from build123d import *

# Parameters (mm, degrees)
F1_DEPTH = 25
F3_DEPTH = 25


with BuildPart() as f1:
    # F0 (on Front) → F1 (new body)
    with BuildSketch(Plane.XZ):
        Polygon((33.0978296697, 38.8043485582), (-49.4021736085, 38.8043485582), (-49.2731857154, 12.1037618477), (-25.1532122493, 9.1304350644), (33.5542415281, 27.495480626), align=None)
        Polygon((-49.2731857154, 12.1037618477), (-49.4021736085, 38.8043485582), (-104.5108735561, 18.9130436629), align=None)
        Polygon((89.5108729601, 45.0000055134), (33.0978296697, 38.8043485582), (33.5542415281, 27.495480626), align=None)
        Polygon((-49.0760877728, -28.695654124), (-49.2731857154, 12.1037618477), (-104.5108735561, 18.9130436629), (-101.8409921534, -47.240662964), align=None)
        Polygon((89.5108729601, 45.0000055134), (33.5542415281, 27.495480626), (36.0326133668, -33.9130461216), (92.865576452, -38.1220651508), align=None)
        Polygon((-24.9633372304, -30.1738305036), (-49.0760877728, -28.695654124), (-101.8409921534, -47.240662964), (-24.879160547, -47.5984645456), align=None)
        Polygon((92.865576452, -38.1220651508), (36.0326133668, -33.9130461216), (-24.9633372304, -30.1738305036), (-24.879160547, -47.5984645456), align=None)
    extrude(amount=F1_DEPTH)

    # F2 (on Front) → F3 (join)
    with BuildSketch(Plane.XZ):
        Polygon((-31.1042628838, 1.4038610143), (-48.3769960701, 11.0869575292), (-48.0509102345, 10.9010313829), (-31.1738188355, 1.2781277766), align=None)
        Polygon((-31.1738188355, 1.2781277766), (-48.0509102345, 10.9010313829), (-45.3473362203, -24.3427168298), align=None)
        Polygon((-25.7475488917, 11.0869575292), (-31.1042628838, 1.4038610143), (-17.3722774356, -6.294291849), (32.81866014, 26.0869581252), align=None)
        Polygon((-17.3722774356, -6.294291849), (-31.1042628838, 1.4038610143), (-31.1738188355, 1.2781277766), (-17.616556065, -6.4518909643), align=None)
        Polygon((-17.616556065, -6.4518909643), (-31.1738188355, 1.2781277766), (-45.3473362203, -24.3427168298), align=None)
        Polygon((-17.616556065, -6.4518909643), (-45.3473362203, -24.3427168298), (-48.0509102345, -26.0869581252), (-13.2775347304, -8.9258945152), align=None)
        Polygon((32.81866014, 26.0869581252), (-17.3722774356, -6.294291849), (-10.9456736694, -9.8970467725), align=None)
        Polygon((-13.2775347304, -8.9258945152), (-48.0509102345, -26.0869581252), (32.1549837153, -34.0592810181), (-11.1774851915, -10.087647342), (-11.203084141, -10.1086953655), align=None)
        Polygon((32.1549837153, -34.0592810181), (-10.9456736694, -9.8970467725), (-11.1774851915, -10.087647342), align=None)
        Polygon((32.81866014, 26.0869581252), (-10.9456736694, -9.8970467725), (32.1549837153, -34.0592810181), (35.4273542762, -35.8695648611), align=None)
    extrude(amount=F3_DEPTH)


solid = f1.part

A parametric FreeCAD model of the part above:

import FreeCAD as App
import Part
import Sketcher
from FreeCAD import Vector
Q = App.Units.Quantity


def add_polygon(sketch, points):
    """Adds a closed chain of lines whose ends are joined by coincident constraints."""
    first, n = sketch.GeometryCount, len(points)
    for a, b in zip(points, points[1:] + points[:1]):
        sketch.addGeometry(Part.LineSegment(App.Vector(*a, 0), App.Vector(*b, 0)), False)
    for i in range(n):
        sketch.addConstraint(Sketcher.Constraint("Coincident", first + i, 2, first + (i + 1) % n, 1))

doc = App.newDocument("Part")
body = doc.addObject("PartDesign::Body", "Body")

# Sketch on XZ plane
sketch1 = body.newObject("Sketcher::SketchObject", "Sketch")
sketch1.AttachmentSupport = (doc.getObject("XZ_Plane"), [""])
sketch1.MapMode = "FlatFace"
add_polygon(sketch1, [(33, 39), (-49, 39), (-105, 19), (-102, -47), (-25, -48), (93, -38), (90, 45)])  # lines 0-6
add_polygon(sketch1, [(-25, -30), (-49, -29), (-49, 12), (-25, 9), (34, 27), (36, -34)])  # lines 7-12
sketch1.addConstraint(Sketcher.Constraint("Horizontal", 0))
sketch1.addConstraint(Sketcher.Constraint("Parallel", 2, 5))
sketch1.addConstraint(Sketcher.Constraint("Parallel", 5, 11))
sketch1.addConstraint(Sketcher.Constraint("Parallel", 7, 12))
sketch1.addConstraint(Sketcher.Constraint("DistanceX", 1, 2, 0, 2, Q("55.1087 mm")))
sketch1.addConstraint(Sketcher.Constraint("DistanceY", 3, 2, 2, 2, Q("0.357802 mm")))
sketch1.addConstraint(Sketcher.Constraint("DistanceY", 3, 2, 4, 2, Q("9.476399 mm")))
sketch1.addConstraint(Sketcher.Constraint("DistanceY", 3, 2, 9, 2, Q("56.7289 mm")))
sketch1.addConstraint(Sketcher.Constraint("Distance", 2, Q("66.207561 mm")))
sketch1.addConstraint(Sketcher.Constraint("Distance", 5, Q("83.189739 mm")))
sketch1.addConstraint(Sketcher.Constraint("Distance", 11, Q("61.458518 mm")))
sketch1.addConstraint(Sketcher.Constraint("DistanceX", 0, 2, 0, 1, Q("82.500003 mm")))
sketch1.addConstraint(Sketcher.Constraint("DistanceY", -1, 1, 0, 2, Q("38.804349 mm")))
sketch1.addConstraint(Sketcher.Constraint("DistanceX", 3, 2, -1, 1, Q("24.879161 mm")))
sketch1.addConstraint(Sketcher.Constraint("DistanceX", -1, 1, 6, 2, Q("33.09783 mm")))
sketch1.addConstraint(Sketcher.Constraint("DistanceY", -1, 1, 8, 2, Q("12.103762 mm")))
sketch1.addConstraint(Sketcher.Constraint("DistanceX", -1, 1, 10, 2, Q("33.554242 mm")))
sketch1.addConstraint(Sketcher.Constraint("DistanceY", -1, 1, 10, 2, Q("27.495481 mm")))
sketch1.addConstraint(Sketcher.Constraint("DistanceY", 12, 2, -1, 1, Q("30.173831 mm")))
sketch1.addConstraint(Sketcher.Constraint("DistanceX", 1, 2, 2, 2, Q("2.669881 mm")))
sketch1.addConstraint(Sketcher.Constraint("DistanceY", 2, 2, 0, 2, Q("86.045012 mm")))
sketch1.addConstraint(Sketcher.Constraint("DistanceX", 0, 2, 4, 2, Q("142.26775 mm")))
sketch1.addConstraint(Sketcher.Constraint("DistanceY", 3, 2, 7, 2, Q("18.90281 mm")))
sketch1.addConstraint(Sketcher.Constraint("DistanceX", 0, 2, 9, 2, Q("24.248961 mm")))
sketch1.addConstraint(Sketcher.Constraint("DistanceX", 7, 2, 12, 2, Q("24.112751 mm")))
sketch1.addConstraint(Sketcher.Constraint("DistanceX", 8, 2, 12, 2, Q("24.309848 mm")))
pad1 = body.newObject("PartDesign::Pad", "Pad")
pad1.Profile = sketch1
pad1.Length = 25

# Sketch on XZ plane
sketch2 = body.newObject("Sketcher::SketchObject", "Sketch001")
sketch2.AttachmentSupport = (doc.getObject("XZ_Plane"), [""])
sketch2.MapMode = "FlatFace"
add_polygon(sketch2, [(-48.05091, -26.086958), (32.154984, -34.059281), (35.427354, -35.869565), (32.81866, 26.086958), (-25.747549, 11.086958), (-31.104263, 1.403861), (-48.376996, 11.086958), (-48.05091, 10.901031), (-45.347336, -24.342717)])  # lines 0-8
add_polygon(sketch2, [(-17.372277, -6.294292), (-10.945674, -9.897047), (-11.177485, -10.087647), (-11.203084, -10.108695), (-13.277535, -8.925895), (-17.616556, -6.451891)])  # lines 9-14
sketch2.addConstraint(Sketcher.Constraint("DistanceY", 3, 2, 2, 2, Q("15.000001 mm")))
sketch2.addConstraint(Sketcher.Constraint("DistanceY", 5, 2, 2, 2, Q("15.000001 mm")))
sketch2.addConstraint(Sketcher.Constraint("DistanceY", 10, 2, 9, 2, Q("0.190601 mm")))
sketch2.addConstraint(Sketcher.Constraint("DistanceX", 11, 2, 10, 2, Q("0.025599 mm")))
sketch2.addConstraint(Sketcher.Constraint("DistanceY", 11, 2, 12, 2, Q("1.182801 mm")))
sketch2.addConstraint(Sketcher.Constraint("DistanceY", 13, 2, 14, 2, Q("0.157599 mm")))
sketch2.addConstraint(Sketcher.Constraint("Distance", 2, Q("62.011419 mm")))
sketch2.addConstraint(Sketcher.Constraint("Distance", 5, Q("19.801759 mm")))
sketch2.addConstraint(Sketcher.Constraint("Distance", 9, Q("7.367569 mm")))
sketch2.addConstraint(Sketcher.Constraint("Distance", 10, Q("0.300109 mm")))
sketch2.addConstraint(Sketcher.Constraint("Distance", 11, Q("0.033141 mm")))
sketch2.addConstraint(Sketcher.Constraint("DistanceY", 0, 2, -1, 1, Q("34.059281 mm")))
sketch2.addConstraint(Sketcher.Constraint("DistanceX", -1, 1, 2, 2, Q("32.81866 mm")))
sketch2.addConstraint(Sketcher.Constraint("DistanceY", -1, 1, 2, 2, Q("26.086958 mm")))
sketch2.addConstraint(Sketcher.Constraint("DistanceX", 3, 2, -1, 1, Q("25.747549 mm")))
sketch2.addConstraint(Sketcher.Constraint("DistanceY", -1, 1, 4, 2, Q("1.403861 mm")))
sketch2.addConstraint(Sketcher.Constraint("DistanceX", 6, 2, -1, 1, Q("48.05091 mm")))
sketch2.addConstraint(Sketcher.Constraint("DistanceY", -1, 1, 6, 2, Q("10.901031 mm")))
sketch2.addConstraint(Sketcher.Constraint("DistanceX", 8, 2, -1, 1, Q("48.05091 mm")))
sketch2.addConstraint(Sketcher.Constraint("DistanceY", 8, 2, -1, 1, Q("26.086958 mm")))
sketch2.addConstraint(Sketcher.Constraint("DistanceY", 13, 2, -1, 1, Q("6.451891 mm")))
sketch2.addConstraint(Sketcher.Constraint("DistanceX", 0, 2, 1, 2, Q("3.272371 mm")))
sketch2.addConstraint(Sketcher.Constraint("DistanceX", 5, 2, 0, 2, Q("80.53198 mm")))
sketch2.addConstraint(Sketcher.Constraint("DistanceY", 7, 2, 6, 2, Q("35.243748 mm")))
sketch2.addConstraint(Sketcher.Constraint("DistanceX", 5, 2, 7, 2, Q("3.02966 mm")))
sketch2.addConstraint(Sketcher.Constraint("DistanceX", 4, 2, 9, 2, Q("20.158589 mm")))
sketch2.addConstraint(Sketcher.Constraint("DistanceY", 7, 2, 9, 2, Q("14.44567 mm")))
sketch2.addConstraint(Sketcher.Constraint("DistanceX", 12, 2, 11, 2, Q("2.074451 mm")))
sketch2.addConstraint(Sketcher.Constraint("DistanceX", 13, 2, 12, 2, Q("4.339021 mm")))
sketch2.addConstraint(Sketcher.Constraint("Distance", 0, Q("80.601137 mm")))
pad2 = body.newObject("PartDesign::Pad", "Pad001")
pad2.Profile = sketch2
pad2.Length = 25

doc.recompute()
